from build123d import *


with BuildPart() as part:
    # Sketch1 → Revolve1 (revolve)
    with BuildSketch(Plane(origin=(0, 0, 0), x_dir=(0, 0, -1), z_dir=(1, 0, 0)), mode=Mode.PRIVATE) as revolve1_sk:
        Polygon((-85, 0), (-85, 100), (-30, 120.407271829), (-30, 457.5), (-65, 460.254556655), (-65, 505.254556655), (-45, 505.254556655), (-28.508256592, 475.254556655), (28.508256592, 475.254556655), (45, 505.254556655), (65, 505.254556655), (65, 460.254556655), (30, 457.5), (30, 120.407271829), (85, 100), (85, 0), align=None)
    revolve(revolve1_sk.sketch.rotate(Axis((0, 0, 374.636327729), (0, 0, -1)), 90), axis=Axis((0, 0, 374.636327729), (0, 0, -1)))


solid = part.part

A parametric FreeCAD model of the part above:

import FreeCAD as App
import Part
import Sketcher

V = App.Vector
Q = App.Units.Quantity

doc = App.newDocument("Part")
body = doc.addObject("PartDesign::Body", "Body")

sketch1 = body.newObject("Sketcher::SketchObject", "Sketch")
sketch1.AttachmentSupport = (doc.getObject("YZ_Plane"), [""])
sketch1.MapMode = "FlatFace"
sketch1.addGeometry(Part.LineSegment(V(100, 85, 0), V(0, 85, 0)), False)
sketch1.addGeometry(Part.LineSegment(V(0, 85, 0), V(0, -85, 0)), False)
sketch1.addGeometry(Part.LineSegment(V(0, -85, 0), V(100, -85, 0)), False)
sketch1.addGeometry(Part.LineSegment(V(100, -85, 0), V(120, -30, 0)), False)
sketch1.addGeometry(Part.LineSegment(V(120, -30, 0), V(458, -30, 0)), False)
sketch1.addGeometry(Part.LineSegment(V(458, -30, 0), V(460, -65, 0)), False)
sketch1.addGeometry(Part.LineSegment(V(460, -65, 0), V(505, -65, 0)), False)
sketch1.addGeometry(Part.LineSegment(V(505, -65, 0), V(505, -45, 0)), False)
sketch1.addGeometry(Part.LineSegment(V(505, -45, 0), V(475, -29, 0)), False)
sketch1.addGeometry(Part.LineSegment(V(475, -29, 0), V(475, 29, 0)), False)
sketch1.addGeometry(Part.LineSegment(V(475, 29, 0), V(505, 45, 0)), False)
sketch1.addGeometry(Part.LineSegment(V(505, 45, 0), V(505, 65, 0)), False)
sketch1.addGeometry(Part.LineSegment(V(505, 65, 0), V(460, 65, 0)), False)
sketch1.addGeometry(Part.LineSegment(V(460, 65, 0), V(458, 30, 0)), False)
sketch1.addGeometry(Part.LineSegment(V(458, 30, 0), V(120, 30, 0)), False)
sketch1.addGeometry(Part.LineSegment(V(120, 30, 0), V(100, 85, 0)), False)
sketch1.addConstraint(Sketcher.Constraint("Coincident", 0, 2, 1, 1))
sketch1.addConstraint(Sketcher.Constraint("Coincident", 1, 2, 2, 1))
sketch1.addConstraint(Sketcher.Constraint("Coincident", 2, 2, 3, 1))
sketch1.addConstraint(Sketcher.Constraint("Coincident", 3, 2, 4, 1))
sketch1.addConstraint(Sketcher.Constraint("Coincident", 4, 2, 5, 1))
sketch1.addConstraint(Sketcher.Constraint("Coincident", 5, 2, 6, 1))
sketch1.addConstraint(Sketcher.Constraint("Coincident", 6, 2, 7, 1))
sketch1.addConstraint(Sketcher.Constraint("Coincident", 7, 2, 8, 1))
sketch1.addConstraint(Sketcher.Constraint("Coincident", 8, 2, 9, 1))
sketch1.addConstraint(Sketcher.Constraint("Coincident", 9, 2, 10, 1))
sketch1.addConstraint(Sketcher.Constraint("Coincident", 10, 2, 11, 1))
sketch1.addConstraint(Sketcher.Constraint("Coincident", 11, 2, 12, 1))
sketch1.addConstraint(Sketcher.Constraint("Coincident", 12, 2, 13, 1))
sketch1.addConstraint(Sketcher.Constraint("Coincident", 13, 2, 14, 1))
sketch1.addConstraint(Sketcher.Constraint("Coincident", 14, 2, 15, 1))
sketch1.addConstraint(Sketcher.Constraint("Coincident", 15, 2, 0, 1))
sketch1.addConstraint(Sketcher.Constraint("Horizontal", 0))
sketch1.addConstraint(Sketcher.Constraint("Vertical", 1))
sketch1.addConstraint(Sketcher.Constraint("Horizontal", 2))
sketch1.addConstraint(Sketcher.Constraint("Horizontal", 4))
sketch1.addConstraint(Sketcher.Constraint("Horizontal", 6))
sketch1.addConstraint(Sketcher.Constraint("Vertical", 7))
sketch1.addConstraint(Sketcher.Constraint("Vertical", 9))
sketch1.addConstraint(Sketcher.Constraint("Vertical", 11))
sketch1.addConstraint(Sketcher.Constraint("Horizontal", 12))
sketch1.addConstraint(Sketcher.Constraint("Horizontal", 14))
sketch1.addConstraint(Sketcher.Constraint("Symmetric", 0, 2, 1, 2, -1, 1))
sketch1.addConstraint(Sketcher.Constraint("Symmetric", 7, 2, 10, 2, -1))
sketch1.addConstraint(Sketcher.Constraint("Symmetric", 5, 2, 12, 2, -1))
sketch1.addConstraint(Sketcher.Constraint("Symmetric", 4, 2, 13, 2, -1))
sketch1.addConstraint(Sketcher.Constraint("Vertical", 3, 2, 14, 2))
sketch1.addConstraint(Sketcher.Constraint("Vertical", 2, 2, 15, 2))
sketch1.addConstraint(Sketcher.Constraint("Equal", 8, 10))
sketch1.addConstraint(Sketcher.Constraint("DistanceX", 0, 2, 0, 1, Q("100 mm")))
sketch1.addConstraint(Sketcher.Constraint("DistanceX", 6, 1, 6, 2, Q("45 mm")))
sketch1.addConstraint(Sketcher.Constraint("DistanceY", 1, 2, 1, 1, Q("170 mm")))
sketch1.addConstraint(Sketcher.Constraint("DistanceY", 7, 1, 7, 2, Q("20 mm")))
sketch1.addConstraint(Sketcher.Constraint("DistanceY", 3, 2, -1, 1, Q("30 mm")))
sketch1.addConstraint(Sketcher.Constraint("DistanceY", 5, 2, -1, 1, Q("65 mm")))
sketch1.addConstraint(Sketcher.Constraint("Angle", 5, Q("-85.500005 deg")))
sketch1.addConstraint(Sketcher.Constraint("DistanceX", 8, 2, 7, 2, Q("30 mm")))
sketch1.addConstraint(Sketcher.Constraint("DistanceX", -1, 1, 4, 2, Q("457.5 mm")))
sketch1.addConstraint(Sketcher.Constraint("DistanceX", 4, 1, 4, 2, Q("337.092728 mm")))
sketch1.addConstraint(Sketcher.Constraint("Distance", 8, Q("34.234158 mm")))
revolution = body.newObject("PartDesign::Revolution", "Revolution")
revolution.Profile = sketch1
revolution.ReferenceAxis = (sketch1, ["V_Axis"])
revolution.Angle = 360

doc.recompute()
